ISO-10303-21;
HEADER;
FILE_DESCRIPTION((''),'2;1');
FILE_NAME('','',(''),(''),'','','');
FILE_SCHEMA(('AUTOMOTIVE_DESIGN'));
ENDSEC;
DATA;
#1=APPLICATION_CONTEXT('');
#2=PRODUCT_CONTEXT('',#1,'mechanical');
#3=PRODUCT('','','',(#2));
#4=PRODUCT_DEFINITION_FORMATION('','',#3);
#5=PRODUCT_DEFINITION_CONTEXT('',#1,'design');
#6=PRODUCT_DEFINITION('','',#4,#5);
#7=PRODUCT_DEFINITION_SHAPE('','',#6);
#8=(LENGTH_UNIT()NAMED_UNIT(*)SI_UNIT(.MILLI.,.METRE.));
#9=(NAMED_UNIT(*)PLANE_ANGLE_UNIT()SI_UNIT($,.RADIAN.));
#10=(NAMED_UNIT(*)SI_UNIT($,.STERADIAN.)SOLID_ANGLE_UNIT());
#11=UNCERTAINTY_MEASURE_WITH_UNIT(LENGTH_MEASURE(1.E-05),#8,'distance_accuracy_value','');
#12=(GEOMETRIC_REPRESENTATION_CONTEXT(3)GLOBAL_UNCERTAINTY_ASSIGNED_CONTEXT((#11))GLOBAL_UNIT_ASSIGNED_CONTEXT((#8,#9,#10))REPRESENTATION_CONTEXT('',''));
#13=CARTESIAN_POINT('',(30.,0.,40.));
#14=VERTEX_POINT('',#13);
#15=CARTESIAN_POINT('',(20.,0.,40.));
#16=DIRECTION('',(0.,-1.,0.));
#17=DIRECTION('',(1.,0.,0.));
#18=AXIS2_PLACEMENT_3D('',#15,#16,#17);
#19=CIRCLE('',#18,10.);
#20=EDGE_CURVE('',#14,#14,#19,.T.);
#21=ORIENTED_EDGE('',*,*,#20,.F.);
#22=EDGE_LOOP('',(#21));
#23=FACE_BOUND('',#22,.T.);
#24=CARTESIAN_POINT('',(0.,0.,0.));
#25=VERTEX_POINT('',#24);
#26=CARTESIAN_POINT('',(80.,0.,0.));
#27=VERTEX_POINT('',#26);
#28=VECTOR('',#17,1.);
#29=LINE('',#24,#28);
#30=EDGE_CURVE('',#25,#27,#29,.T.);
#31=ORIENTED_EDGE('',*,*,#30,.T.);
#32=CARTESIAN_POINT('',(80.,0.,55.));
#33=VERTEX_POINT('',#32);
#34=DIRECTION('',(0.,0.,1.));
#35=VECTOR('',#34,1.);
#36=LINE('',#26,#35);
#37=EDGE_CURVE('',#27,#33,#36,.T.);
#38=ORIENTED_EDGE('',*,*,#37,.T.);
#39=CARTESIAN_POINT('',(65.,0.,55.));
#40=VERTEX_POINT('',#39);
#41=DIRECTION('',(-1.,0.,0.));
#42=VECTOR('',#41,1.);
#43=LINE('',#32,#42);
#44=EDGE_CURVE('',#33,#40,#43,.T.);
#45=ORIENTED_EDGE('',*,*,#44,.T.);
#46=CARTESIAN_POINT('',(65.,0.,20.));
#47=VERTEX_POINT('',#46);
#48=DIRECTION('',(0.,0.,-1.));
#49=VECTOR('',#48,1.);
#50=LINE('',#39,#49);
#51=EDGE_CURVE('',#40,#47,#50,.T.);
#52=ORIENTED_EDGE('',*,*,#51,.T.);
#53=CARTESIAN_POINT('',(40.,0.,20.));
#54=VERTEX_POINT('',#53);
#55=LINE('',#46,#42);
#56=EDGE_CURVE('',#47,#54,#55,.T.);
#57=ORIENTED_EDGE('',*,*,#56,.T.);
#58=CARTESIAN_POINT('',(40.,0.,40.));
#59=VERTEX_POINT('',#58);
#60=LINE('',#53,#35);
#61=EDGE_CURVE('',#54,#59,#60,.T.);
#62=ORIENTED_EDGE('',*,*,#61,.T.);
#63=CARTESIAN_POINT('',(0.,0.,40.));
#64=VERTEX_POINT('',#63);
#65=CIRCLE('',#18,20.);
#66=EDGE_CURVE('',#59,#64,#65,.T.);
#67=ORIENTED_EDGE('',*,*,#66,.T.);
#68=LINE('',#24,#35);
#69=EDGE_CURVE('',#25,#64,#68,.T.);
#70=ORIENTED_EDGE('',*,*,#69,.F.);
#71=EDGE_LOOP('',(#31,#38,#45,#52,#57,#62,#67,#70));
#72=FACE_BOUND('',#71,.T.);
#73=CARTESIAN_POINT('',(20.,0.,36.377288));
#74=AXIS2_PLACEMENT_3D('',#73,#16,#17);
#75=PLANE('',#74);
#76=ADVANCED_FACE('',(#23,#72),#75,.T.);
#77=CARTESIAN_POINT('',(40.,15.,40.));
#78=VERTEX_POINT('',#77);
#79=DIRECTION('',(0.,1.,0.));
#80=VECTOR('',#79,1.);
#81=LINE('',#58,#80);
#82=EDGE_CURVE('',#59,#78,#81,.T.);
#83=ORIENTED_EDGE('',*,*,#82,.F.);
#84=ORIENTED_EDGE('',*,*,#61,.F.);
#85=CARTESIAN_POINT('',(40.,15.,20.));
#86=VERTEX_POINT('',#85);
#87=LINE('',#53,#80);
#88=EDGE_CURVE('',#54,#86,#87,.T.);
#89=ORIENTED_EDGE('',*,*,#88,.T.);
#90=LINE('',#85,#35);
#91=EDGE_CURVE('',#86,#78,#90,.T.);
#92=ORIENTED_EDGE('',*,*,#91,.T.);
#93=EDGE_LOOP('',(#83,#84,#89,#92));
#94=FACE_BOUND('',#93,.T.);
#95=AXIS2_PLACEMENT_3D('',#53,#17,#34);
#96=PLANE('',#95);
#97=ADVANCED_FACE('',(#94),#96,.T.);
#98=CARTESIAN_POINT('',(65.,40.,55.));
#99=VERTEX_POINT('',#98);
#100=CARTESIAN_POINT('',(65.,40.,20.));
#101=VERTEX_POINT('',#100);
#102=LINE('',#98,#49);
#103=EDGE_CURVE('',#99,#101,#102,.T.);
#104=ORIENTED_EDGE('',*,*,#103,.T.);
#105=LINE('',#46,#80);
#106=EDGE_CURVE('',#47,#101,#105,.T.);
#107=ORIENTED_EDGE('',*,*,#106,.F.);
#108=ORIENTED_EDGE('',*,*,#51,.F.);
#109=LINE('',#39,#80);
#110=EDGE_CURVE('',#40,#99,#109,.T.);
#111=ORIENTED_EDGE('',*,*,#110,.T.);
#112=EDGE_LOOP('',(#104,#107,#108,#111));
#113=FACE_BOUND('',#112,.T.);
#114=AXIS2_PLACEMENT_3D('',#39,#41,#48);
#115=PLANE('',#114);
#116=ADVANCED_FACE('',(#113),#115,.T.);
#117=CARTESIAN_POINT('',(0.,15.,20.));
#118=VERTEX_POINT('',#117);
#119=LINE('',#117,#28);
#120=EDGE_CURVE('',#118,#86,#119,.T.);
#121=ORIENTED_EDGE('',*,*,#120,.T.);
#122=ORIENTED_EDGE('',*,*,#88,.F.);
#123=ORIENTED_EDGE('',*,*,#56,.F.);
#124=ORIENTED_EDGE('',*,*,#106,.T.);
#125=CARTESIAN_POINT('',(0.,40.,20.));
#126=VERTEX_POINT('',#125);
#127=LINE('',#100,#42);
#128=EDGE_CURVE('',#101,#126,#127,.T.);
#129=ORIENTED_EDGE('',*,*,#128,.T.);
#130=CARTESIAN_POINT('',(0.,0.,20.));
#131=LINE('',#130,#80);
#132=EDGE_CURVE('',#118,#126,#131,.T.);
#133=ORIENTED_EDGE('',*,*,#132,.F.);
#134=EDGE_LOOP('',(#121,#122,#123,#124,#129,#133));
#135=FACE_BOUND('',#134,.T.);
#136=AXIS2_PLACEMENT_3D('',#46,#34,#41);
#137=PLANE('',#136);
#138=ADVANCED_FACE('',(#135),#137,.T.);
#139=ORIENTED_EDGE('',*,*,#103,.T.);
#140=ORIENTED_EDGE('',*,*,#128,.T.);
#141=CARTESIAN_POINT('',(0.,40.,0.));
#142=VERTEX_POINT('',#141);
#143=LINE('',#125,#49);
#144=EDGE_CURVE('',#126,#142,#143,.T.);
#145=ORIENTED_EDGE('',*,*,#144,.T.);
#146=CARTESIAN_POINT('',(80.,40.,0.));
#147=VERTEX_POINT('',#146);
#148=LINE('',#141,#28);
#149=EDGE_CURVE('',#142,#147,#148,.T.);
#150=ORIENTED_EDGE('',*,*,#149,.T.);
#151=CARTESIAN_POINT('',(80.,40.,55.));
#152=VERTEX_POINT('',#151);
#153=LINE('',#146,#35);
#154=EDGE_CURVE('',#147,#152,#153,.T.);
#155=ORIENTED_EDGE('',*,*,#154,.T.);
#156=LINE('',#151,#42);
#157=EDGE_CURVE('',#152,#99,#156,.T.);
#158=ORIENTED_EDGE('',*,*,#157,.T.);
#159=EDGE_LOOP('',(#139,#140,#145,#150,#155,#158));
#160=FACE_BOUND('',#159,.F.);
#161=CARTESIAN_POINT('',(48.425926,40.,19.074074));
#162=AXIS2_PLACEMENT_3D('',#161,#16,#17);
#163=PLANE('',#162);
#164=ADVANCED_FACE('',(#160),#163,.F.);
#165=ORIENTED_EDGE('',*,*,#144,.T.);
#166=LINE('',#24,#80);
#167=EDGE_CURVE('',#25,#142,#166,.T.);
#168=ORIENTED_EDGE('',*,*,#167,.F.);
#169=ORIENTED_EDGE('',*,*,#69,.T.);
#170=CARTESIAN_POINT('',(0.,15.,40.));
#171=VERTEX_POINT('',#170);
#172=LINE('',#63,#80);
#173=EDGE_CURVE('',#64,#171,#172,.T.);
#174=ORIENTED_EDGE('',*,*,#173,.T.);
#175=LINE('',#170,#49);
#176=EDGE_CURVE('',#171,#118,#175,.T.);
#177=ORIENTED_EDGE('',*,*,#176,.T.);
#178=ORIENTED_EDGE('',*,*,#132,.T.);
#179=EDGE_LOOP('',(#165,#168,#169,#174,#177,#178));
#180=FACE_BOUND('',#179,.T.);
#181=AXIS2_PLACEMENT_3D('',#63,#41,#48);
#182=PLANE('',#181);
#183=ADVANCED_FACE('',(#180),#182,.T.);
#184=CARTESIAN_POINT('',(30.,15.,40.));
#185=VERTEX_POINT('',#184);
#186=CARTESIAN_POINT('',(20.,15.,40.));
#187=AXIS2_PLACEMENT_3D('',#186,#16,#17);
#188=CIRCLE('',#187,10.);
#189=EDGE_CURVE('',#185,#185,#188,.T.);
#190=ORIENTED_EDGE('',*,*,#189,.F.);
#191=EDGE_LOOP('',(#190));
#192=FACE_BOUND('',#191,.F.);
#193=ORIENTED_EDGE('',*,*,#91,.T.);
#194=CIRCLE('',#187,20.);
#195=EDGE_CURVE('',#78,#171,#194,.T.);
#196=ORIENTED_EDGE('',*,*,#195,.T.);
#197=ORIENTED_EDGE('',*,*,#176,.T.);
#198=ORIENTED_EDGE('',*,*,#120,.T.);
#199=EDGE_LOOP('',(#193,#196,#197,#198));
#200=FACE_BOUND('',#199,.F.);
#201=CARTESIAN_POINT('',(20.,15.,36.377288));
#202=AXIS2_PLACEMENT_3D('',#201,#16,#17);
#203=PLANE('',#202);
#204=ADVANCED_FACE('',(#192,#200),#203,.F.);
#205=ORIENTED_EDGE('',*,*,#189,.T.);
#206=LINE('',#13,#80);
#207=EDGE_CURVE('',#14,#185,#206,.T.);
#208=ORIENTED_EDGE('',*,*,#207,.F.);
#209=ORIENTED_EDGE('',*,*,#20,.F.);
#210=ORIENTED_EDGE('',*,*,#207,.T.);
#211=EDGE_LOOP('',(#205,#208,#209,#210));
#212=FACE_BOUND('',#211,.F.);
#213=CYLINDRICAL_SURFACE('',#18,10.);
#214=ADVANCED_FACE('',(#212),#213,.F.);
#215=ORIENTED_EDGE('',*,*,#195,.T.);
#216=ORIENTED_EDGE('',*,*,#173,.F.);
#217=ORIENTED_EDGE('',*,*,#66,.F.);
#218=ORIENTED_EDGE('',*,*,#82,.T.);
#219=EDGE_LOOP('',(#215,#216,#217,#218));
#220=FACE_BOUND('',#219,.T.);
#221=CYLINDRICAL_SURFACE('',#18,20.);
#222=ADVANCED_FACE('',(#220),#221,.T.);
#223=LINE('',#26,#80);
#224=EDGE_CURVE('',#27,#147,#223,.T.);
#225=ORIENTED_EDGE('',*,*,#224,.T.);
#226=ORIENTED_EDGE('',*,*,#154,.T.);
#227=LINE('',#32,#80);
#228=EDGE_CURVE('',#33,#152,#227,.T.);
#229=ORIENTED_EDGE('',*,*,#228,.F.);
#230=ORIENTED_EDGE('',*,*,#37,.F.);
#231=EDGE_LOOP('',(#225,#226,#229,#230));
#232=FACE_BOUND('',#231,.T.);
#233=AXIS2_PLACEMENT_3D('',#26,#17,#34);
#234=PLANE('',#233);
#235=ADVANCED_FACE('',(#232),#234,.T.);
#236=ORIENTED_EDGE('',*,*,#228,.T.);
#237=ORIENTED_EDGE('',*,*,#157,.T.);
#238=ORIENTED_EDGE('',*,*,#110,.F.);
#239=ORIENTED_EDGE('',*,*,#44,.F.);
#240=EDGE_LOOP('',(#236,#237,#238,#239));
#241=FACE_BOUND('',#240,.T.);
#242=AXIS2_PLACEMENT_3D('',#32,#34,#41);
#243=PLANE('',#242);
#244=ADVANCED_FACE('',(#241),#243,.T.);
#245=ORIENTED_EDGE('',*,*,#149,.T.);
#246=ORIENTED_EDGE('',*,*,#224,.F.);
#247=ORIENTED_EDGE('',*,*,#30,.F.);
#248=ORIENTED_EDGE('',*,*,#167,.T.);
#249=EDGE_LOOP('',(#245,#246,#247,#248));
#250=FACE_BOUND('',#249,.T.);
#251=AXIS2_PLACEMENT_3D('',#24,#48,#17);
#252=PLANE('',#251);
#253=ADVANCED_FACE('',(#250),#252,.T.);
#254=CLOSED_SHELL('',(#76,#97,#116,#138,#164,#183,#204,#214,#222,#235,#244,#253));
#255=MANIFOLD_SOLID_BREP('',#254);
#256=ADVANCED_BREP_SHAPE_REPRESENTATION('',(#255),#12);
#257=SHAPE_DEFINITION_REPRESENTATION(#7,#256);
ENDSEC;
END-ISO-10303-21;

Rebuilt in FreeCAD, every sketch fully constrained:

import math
import FreeCAD as App
import Part
import Sketcher
Q = App.Units.Quantity

doc = App.newDocument("Part")
body = doc.addObject("PartDesign::Body", "Body")

# Sketch on XZ plane
sketch1 = doc.addObject("Sketcher::SketchObject", "Sketch")
body.addObject(sketch1)
sketch1.AttachmentSupport = (doc.XZ_Plane, [""])
sketch1.MapMode = "FlatFace"
sketch1.addGeometry([
    Part.LineSegment(App.Vector(0, 20, 0), App.Vector(0, 0, 0)),  # 0
    Part.LineSegment(App.Vector(0, 0, 0), App.Vector(80, 0, 0)),  # 1
    Part.LineSegment(App.Vector(80, 0, 0), App.Vector(80, 55, 0)),  # 2
    Part.LineSegment(App.Vector(80, 55, 0), App.Vector(65, 55, 0)),  # 3
    Part.LineSegment(App.Vector(65, 55, 0), App.Vector(65, 20, 0)),  # 4
    Part.LineSegment(App.Vector(65, 20, 0), App.Vector(0, 20, 0)),  # 5
], False)
sketch1.addConstraint([
    Sketcher.Constraint("Coincident", 0, 2, 1, 1),
    Sketcher.Constraint("Coincident", 1, 2, 2, 1),
    Sketcher.Constraint("Coincident", 2, 2, 3, 1),
    Sketcher.Constraint("Coincident", 3, 2, 4, 1),
    Sketcher.Constraint("Coincident", 4, 2, 5, 1),
    Sketcher.Constraint("Coincident", 5, 2, 0, 1),
    Sketcher.Constraint("Vertical", 0),
    Sketcher.Constraint("Horizontal", 1),
    Sketcher.Constraint("Vertical", 2),
    Sketcher.Constraint("Horizontal", 3),
    Sketcher.Constraint("Vertical", 4),
    Sketcher.Constraint("Horizontal", 5),
    Sketcher.Constraint("Coincident", 0, 2, -1, 1),
    Sketcher.Constraint("DistanceX", 1, 1, 1, 2, Q("80 mm")),
    Sketcher.Constraint("DistanceX", 3, 2, 3, 1, Q("15 mm")),
    Sketcher.Constraint("DistanceY", 0, 2, 0, 1, Q("20 mm")),
    Sketcher.Constraint("DistanceY", 2, 1, 2, 2, Q("55 mm")),
])
pad1 = doc.addObject("PartDesign::Pad", "Pad")
body.addObject(pad1)
pad1.Profile = sketch1
pad1.Length = 40
pad1.Reversed = True

# Sketch on XZ plane
sketch2 = doc.addObject("Sketcher::SketchObject", "Sketch001")
body.addObject(sketch2)
sketch2.AttachmentSupport = (doc.XZ_Plane, [""])
sketch2.MapMode = "FlatFace"
sketch2.addGeometry([
    Part.LineSegment(App.Vector(0, 40, 0), App.Vector(0, 20, 0)),  # 0
    Part.LineSegment(App.Vector(0, 20, 0), App.Vector(40, 20, 0)),  # 1
    Part.LineSegment(App.Vector(40, 20, 0), App.Vector(40, 40, 0)),  # 2
    Part.ArcOfCircle(Part.Circle(App.Vector(20, 40, 0), App.Vector(0, 0, 1), 20), math.radians(0), math.radians(180)),  # 3
    Part.Circle(App.Vector(20, 40, 0), App.Vector(0, 0, 1), 10),  # 4
], False)
sketch2.addConstraint([
    Sketcher.Constraint("Coincident", 0, 2, 1, 1),
    Sketcher.Constraint("Coincident", 1, 2, 2, 1),
    Sketcher.Constraint("Tangent", 2, 2, 3, 1),
    Sketcher.Constraint("Tangent", 3, 2, 0, 1),
    Sketcher.Constraint("Vertical", 0),
    Sketcher.Constraint("Horizontal", 1),
    Sketcher.Constraint("Vertical", 2),
    Sketcher.Constraint("Coincident", 4, 3, 3, 3),
    Sketcher.Constraint("PointOnObject", 0, 2, -2),
    Sketcher.Constraint("Diameter", 4, Q("20 mm")),
    Sketcher.Constraint("Radius", 3, Q("20 mm")),
    Sketcher.Constraint("DistanceY", 0, 2, 0, 1, Q("20 mm")),
    Sketcher.Constraint("DistanceY", -1, 1, 3, 3, Q("40 mm")),
])
pad2 = doc.addObject("PartDesign::Pad", "Pad001")
body.addObject(pad2)
pad2.Profile = sketch2
pad2.Length = 15
pad2.Reversed = True

doc.recompute()
